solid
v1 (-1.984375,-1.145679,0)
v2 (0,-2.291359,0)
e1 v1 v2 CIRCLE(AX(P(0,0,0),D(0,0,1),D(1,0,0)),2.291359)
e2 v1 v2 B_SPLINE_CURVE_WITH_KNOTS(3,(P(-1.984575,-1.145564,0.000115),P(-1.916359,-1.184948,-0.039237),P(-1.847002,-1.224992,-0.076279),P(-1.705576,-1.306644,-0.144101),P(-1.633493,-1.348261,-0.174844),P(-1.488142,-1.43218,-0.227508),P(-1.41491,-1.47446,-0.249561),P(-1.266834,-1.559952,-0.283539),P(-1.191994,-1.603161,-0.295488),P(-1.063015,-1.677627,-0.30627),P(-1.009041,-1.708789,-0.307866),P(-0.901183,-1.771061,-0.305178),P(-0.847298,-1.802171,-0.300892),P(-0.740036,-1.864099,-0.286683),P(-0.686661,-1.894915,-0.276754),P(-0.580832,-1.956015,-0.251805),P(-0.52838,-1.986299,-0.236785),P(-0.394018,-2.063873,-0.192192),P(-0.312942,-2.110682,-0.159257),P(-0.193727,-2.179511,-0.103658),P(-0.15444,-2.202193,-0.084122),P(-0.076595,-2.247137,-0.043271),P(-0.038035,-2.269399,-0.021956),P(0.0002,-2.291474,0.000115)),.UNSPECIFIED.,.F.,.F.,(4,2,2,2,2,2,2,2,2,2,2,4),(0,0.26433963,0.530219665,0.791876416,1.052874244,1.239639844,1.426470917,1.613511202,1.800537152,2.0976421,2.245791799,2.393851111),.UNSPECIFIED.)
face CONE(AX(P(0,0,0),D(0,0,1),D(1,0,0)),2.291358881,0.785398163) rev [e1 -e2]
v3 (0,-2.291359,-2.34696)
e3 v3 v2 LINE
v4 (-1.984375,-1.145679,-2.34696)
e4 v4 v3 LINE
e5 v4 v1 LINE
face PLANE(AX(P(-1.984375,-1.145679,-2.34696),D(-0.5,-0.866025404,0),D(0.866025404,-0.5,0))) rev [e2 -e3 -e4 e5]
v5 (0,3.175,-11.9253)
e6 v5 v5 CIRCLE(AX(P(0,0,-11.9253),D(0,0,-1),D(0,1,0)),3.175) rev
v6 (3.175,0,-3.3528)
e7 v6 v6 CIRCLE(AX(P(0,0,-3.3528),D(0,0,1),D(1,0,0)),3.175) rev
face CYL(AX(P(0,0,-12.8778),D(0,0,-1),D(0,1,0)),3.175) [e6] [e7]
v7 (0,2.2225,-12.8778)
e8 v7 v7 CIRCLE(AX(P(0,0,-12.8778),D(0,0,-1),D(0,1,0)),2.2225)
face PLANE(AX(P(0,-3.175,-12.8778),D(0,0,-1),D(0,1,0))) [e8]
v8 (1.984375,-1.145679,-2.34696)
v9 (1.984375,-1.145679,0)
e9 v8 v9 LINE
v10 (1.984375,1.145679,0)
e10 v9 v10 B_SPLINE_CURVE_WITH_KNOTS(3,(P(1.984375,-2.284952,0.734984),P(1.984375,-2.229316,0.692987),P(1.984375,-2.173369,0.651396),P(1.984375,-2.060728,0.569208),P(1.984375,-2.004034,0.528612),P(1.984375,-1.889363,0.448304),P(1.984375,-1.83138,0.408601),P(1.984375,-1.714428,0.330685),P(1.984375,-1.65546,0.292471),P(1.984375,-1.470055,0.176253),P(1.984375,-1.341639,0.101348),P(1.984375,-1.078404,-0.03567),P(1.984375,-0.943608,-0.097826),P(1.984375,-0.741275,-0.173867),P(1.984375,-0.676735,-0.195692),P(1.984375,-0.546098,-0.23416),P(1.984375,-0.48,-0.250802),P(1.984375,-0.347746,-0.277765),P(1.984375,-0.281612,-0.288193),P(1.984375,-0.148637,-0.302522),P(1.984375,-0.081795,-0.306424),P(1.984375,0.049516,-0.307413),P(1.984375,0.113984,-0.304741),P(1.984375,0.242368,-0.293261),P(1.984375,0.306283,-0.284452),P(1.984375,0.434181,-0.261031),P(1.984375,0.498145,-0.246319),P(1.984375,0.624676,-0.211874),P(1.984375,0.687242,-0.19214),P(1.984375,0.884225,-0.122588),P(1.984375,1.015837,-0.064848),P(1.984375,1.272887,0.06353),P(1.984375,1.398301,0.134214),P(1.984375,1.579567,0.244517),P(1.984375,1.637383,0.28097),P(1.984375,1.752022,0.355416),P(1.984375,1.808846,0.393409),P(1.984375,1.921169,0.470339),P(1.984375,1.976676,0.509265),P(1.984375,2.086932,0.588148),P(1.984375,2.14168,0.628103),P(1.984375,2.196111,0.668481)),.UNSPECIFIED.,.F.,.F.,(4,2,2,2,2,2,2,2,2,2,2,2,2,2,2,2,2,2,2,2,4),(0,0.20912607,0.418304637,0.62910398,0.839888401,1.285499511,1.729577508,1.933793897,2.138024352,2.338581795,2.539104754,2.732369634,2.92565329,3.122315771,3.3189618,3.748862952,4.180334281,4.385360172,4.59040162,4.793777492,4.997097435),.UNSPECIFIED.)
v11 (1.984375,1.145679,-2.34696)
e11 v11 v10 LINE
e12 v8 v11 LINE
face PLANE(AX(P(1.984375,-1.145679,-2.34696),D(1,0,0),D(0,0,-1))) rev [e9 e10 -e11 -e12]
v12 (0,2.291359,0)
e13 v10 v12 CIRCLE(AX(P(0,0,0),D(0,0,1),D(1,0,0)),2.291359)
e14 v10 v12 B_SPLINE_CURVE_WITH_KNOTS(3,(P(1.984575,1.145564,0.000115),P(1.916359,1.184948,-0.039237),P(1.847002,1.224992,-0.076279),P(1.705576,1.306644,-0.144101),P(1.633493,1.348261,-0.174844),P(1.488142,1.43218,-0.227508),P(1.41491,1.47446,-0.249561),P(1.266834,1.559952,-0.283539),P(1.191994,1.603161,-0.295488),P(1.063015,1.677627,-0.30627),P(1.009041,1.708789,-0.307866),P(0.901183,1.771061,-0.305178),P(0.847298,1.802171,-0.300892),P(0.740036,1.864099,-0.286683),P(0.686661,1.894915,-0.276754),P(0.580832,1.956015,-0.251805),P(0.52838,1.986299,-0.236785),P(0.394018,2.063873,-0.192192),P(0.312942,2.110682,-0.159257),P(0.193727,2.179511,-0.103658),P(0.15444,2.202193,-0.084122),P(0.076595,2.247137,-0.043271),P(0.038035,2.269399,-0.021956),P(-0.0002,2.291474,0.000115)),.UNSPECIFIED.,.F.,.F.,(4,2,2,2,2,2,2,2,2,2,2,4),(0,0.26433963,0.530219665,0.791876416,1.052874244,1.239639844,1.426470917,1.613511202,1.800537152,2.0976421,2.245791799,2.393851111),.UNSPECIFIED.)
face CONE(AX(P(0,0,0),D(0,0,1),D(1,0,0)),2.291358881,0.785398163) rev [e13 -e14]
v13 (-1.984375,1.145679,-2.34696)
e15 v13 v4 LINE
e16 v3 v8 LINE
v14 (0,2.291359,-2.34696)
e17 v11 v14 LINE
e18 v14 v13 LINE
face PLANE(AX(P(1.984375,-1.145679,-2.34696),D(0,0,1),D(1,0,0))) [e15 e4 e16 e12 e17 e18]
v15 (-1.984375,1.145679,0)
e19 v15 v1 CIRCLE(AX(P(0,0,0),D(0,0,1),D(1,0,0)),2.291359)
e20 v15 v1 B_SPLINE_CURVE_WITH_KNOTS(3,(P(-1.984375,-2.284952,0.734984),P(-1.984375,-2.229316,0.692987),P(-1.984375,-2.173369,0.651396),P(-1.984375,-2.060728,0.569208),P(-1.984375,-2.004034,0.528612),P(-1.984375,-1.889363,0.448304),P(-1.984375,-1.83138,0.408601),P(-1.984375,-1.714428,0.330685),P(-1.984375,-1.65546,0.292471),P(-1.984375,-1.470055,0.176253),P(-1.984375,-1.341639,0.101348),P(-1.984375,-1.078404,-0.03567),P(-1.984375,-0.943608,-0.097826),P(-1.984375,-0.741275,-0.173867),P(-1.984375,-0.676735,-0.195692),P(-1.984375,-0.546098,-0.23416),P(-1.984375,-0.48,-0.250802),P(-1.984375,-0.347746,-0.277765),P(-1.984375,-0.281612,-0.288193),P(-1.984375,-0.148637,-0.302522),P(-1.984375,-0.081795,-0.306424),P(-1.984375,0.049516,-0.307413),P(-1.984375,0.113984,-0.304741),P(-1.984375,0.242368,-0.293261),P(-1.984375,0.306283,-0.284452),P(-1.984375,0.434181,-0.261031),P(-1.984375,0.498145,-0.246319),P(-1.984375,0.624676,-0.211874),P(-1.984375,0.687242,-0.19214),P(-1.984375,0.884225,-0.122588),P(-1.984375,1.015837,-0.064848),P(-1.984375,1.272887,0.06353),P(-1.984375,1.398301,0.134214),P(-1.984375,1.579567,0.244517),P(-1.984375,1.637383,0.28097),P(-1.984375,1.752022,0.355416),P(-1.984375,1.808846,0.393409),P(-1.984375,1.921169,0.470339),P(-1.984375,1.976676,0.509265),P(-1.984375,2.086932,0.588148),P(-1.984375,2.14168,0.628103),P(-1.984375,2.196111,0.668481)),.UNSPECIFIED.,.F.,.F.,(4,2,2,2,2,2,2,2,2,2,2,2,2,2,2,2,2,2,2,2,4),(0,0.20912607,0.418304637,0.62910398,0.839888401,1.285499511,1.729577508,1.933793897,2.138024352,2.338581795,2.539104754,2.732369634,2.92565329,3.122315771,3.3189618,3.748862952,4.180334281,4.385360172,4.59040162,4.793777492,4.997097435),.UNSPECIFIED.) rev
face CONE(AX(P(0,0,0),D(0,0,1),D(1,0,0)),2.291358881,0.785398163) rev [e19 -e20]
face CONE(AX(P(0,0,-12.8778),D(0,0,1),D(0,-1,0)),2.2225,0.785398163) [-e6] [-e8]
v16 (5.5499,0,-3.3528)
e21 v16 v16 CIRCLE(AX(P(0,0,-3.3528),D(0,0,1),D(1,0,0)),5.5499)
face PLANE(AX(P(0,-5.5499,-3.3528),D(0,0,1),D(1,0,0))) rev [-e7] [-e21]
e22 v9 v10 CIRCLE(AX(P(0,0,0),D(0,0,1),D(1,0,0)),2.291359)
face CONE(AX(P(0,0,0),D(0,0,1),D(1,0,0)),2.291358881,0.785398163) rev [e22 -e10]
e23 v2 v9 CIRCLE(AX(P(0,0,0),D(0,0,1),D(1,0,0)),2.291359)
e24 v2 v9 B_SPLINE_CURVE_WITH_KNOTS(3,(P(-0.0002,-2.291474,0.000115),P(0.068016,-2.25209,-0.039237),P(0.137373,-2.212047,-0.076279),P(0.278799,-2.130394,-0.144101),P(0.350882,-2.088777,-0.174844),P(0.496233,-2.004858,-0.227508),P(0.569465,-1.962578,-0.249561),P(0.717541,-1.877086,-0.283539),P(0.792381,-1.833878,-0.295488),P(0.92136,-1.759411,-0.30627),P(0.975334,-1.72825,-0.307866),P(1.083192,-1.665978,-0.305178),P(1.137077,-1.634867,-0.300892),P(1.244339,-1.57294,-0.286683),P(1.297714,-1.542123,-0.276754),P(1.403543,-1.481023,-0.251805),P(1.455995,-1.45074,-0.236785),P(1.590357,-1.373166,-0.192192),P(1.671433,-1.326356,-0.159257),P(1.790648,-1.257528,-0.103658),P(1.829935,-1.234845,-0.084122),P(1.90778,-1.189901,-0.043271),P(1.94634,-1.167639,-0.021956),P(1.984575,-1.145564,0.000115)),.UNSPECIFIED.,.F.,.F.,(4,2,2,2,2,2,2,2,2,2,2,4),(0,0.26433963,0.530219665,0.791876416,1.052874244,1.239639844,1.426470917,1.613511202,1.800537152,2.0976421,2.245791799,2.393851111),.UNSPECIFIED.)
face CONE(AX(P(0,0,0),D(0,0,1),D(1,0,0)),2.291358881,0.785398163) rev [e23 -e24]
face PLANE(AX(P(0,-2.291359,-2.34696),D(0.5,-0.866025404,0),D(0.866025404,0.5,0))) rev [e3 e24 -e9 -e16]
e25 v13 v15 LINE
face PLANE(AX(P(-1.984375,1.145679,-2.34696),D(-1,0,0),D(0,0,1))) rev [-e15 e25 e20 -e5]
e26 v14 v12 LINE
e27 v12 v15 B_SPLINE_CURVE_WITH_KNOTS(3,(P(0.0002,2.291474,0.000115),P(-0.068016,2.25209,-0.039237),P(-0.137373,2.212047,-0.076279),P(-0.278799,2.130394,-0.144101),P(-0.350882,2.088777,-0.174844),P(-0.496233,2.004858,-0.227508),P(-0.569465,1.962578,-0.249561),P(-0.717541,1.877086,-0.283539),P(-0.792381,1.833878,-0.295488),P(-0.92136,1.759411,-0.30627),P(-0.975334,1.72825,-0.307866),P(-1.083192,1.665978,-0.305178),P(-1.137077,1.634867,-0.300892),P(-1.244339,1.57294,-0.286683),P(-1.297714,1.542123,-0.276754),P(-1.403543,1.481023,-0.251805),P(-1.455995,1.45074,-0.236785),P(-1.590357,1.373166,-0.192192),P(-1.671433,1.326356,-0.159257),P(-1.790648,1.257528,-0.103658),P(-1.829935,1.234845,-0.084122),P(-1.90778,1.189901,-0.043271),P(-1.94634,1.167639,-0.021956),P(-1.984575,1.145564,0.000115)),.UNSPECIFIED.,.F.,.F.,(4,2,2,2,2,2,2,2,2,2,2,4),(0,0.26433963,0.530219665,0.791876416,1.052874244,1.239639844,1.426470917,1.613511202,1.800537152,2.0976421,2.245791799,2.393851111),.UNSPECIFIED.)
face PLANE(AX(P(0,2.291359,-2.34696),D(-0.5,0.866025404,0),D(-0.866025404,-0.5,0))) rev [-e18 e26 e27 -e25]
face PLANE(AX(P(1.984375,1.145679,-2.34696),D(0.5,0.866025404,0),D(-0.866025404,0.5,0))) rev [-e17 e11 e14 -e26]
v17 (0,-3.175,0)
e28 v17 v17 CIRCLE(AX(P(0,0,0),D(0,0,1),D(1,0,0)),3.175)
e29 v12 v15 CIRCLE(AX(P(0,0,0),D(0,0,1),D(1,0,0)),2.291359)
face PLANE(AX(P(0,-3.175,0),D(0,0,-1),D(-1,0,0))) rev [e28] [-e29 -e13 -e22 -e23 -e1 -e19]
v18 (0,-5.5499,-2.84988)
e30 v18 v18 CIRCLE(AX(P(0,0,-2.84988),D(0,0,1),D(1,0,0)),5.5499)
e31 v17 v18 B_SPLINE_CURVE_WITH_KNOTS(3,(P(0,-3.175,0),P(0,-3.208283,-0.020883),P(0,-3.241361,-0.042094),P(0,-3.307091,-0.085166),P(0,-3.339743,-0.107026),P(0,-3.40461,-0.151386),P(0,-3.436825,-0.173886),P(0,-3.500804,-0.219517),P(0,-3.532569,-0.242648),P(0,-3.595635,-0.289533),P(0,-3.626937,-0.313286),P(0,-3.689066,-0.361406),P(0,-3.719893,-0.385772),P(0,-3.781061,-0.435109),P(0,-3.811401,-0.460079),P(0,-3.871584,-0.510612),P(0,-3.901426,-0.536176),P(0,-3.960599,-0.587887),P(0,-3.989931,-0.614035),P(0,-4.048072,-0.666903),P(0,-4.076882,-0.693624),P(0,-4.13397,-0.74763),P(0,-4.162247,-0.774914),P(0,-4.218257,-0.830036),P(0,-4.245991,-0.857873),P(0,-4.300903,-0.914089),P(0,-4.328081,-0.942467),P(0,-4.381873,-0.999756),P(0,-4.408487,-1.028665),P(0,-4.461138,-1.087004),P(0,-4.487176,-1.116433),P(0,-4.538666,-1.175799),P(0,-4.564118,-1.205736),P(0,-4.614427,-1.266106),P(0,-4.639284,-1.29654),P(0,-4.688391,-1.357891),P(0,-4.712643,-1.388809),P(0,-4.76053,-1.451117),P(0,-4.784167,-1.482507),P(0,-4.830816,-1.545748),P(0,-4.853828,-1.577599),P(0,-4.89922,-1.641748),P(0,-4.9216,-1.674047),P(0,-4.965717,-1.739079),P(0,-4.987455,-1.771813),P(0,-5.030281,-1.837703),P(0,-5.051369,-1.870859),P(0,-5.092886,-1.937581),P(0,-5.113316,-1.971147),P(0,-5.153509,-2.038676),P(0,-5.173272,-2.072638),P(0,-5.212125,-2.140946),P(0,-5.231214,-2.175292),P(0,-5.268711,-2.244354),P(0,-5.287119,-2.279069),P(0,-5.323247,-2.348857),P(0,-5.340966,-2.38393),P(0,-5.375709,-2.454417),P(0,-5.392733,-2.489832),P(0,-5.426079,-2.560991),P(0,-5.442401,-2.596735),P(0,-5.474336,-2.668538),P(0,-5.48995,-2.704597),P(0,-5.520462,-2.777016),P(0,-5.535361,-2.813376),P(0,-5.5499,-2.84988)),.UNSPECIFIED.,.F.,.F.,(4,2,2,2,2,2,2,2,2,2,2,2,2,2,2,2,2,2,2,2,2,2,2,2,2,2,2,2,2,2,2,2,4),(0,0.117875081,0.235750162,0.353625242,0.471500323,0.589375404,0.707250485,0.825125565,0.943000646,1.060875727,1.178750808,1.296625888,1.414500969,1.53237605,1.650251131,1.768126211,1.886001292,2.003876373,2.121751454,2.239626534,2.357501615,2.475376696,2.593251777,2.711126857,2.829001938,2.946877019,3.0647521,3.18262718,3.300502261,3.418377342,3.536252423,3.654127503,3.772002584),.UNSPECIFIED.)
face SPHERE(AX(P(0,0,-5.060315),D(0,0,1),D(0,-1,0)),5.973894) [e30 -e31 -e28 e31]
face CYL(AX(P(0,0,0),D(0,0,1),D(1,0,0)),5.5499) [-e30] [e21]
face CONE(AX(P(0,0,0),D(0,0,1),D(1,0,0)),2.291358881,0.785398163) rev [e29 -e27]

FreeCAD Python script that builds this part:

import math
import FreeCAD as App
import Part
import Sketcher

V = App.Vector
Q = App.Units.Quantity


def edges_at(feature, points):
    """Names of the edges that pass closest to the given points."""
    edges = feature.Shape.Edges
    near = lambda p: min(range(len(edges)), key=lambda i: edges[i].distToShape(Part.Vertex(*p))[0])
    return sorted({f"Edge{near(p) + 1}" for p in points})


def add_polygon(sketch, points):
    """Adds a closed chain of lines whose ends are joined by coincident constraints."""
    first, n = sketch.GeometryCount, len(points)
    for a, b in zip(points, points[1:] + points[:1]):
        sketch.addGeometry(Part.LineSegment(App.Vector(*a, 0), App.Vector(*b, 0)), False)
    for i in range(n):
        sketch.addConstraint(Sketcher.Constraint("Coincident", first + i, 2, first + (i + 1) % n, 1))

doc = App.newDocument("Part")
params = doc.addObject("Spreadsheet::Sheet", "Params")
for row, (alias, value) in enumerate([
    ("sketch1_width", "0.125 in"),
    ("sketch1_height", "0.375 in"),
    ("revolution_angle", "360 deg"),
    ("chamfer_size", "0.0375 in"),
    ("sketch2_width", "0.125 in"),
    ("sketch2_height", "0.132 in"),
    ("revolution2_angle", "360 deg"),
    ("pocket1_length", "0.0924 in"),
    ("groove_angle", "360 deg"),
], start=1):
    params.set(f"A{row}", alias)
    params.set(f"B{row}", "=" + value)
    params.setAlias(f"B{row}", alias)

body = doc.addObject("PartDesign::Body", "Body")

# Sketch on YZ plane
sketch1 = doc.addObject("Sketcher::SketchObject", "Sketch")
body.addObject(sketch1)
sketch1.AttachmentSupport = (doc.YZ_Plane, [""])
sketch1.MapMode = "FlatFace"
add_polygon(sketch1, [(3.2, -3.4), (0, -3.4), (0, -12.9), (3.2, -12.9)])  # lines 0-3
sketch1.addConstraint(Sketcher.Constraint("Horizontal", 0))
sketch1.addConstraint(Sketcher.Constraint("Vertical", 1))
sketch1.addConstraint(Sketcher.Constraint("Horizontal", 2))
sketch1.addConstraint(Sketcher.Constraint("Vertical", 3))
sketch1.addConstraint(Sketcher.Constraint("PointOnObject", 0, 2, -2))
sketch1.addConstraint(Sketcher.Constraint("DistanceX", 0, 2, 0, 1, Q("0.125 in")))
sketch1.addConstraint(Sketcher.Constraint("DistanceY", 1, 2, 1, 1, Q("0.375 in")))
sketch1.addConstraint(Sketcher.Constraint("DistanceY", 0, 2, -1, 1, Q("0.132 in")))
sketch1.setExpression("Constraints[9]", "Params.sketch1_width")
sketch1.setExpression("Constraints[10]", "Params.sketch1_height")
revolution = doc.addObject("PartDesign::Revolution", "Revolution")
body.addObject(revolution)
revolution.Profile = sketch1
revolution.ReferenceAxis = (sketch1, ["V_Axis"])
revolution.setExpression("Angle", "Params.revolution_angle")
doc.recompute()

chamfer = doc.addObject("PartDesign::Chamfer", "Chamfer")
body.addObject(chamfer)
chamfer.Base = (revolution, edges_at(revolution, [(0, -3.175, -12.878)]))
chamfer.setExpression("Size", "Params.chamfer_size")

# Sketch on YZ plane
sketch2 = doc.addObject("Sketcher::SketchObject", "Sketch001")
body.addObject(sketch2)
sketch2.AttachmentSupport = (doc.YZ_Plane, [""])
sketch2.MapMode = "FlatFace"
sketch2.addGeometry(Part.LineSegment(V(5.5, -3.4, 0), V(5.5, -2.8, 0)), False)
sketch2.addGeometry(Part.ArcOfCircle(Part.Circle(V(0, -5.1, 0), V(0, 0, 1), 6), math.radians(22), math.radians(58)), False)
sketch2.addGeometry(Part.LineSegment(V(3.2, 0, 0), V(0, 0, 0)), False)
sketch2.addGeometry(Part.LineSegment(V(0, 0, 0), V(0, -3.4, 0)), False)
sketch2.addGeometry(Part.LineSegment(V(0, -3.4, 0), V(5.5, -3.4, 0)), False)
sketch2.addConstraint(Sketcher.Constraint("Coincident", 0, 2, 1, 1))
sketch2.addConstraint(Sketcher.Constraint("Coincident", 1, 2, 2, 1))
sketch2.addConstraint(Sketcher.Constraint("Coincident", 2, 2, 3, 1))
sketch2.addConstraint(Sketcher.Constraint("Coincident", 3, 2, 4, 1))
sketch2.addConstraint(Sketcher.Constraint("Coincident", 4, 2, 0, 1))
sketch2.addConstraint(Sketcher.Constraint("Vertical", 0))
sketch2.addConstraint(Sketcher.Constraint("Horizontal", 2))
sketch2.addConstraint(Sketcher.Constraint("Vertical", 3))
sketch2.addConstraint(Sketcher.Constraint("Horizontal", 4))
sketch2.addConstraint(Sketcher.Constraint("Coincident", 2, 2, -1, 1))
sketch2.addConstraint(Sketcher.Constraint("PointOnObject", 1, 3, -2))
sketch2.addConstraint(Sketcher.Constraint("DistanceX", 2, 2, 2, 1, Q("0.125 in")))
sketch2.addConstraint(Sketcher.Constraint("DistanceY", 3, 2, 3, 1, Q("0.132 in")))
sketch2.addConstraint(Sketcher.Constraint("DistanceX", 4, 1, 4, 2, Q("0.2185 in")))
sketch2.addConstraint(Sketcher.Constraint("DistanceY", 0, 1, 0, 2, Q("0.0198 in")))
sketch2.setExpression("Constraints[11]", "Params.sketch2_width")
sketch2.setExpression("Constraints[12]", "Params.sketch2_height")
revolution2 = doc.addObject("PartDesign::Revolution", "Revolution001")
body.addObject(revolution2)
revolution2.Profile = sketch2
revolution2.ReferenceAxis = (sketch2, ["V_Axis"])
revolution2.setExpression("Angle", "Params.revolution2_angle")

# Sketch on XY plane
sketch3 = doc.addObject("Sketcher::SketchObject", "Sketch002")
body.addObject(sketch3)
sketch3.AttachmentSupport = (doc.XY_Plane, [""])
sketch3.MapMode = "FlatFace"
add_polygon(sketch3, [(2, -1.1), (2, 1.1), (0, 2.3), (-2, 1.1), (-2, -1.1), (0, -2.3)])  # lines 0-5
sketch3.addConstraint(Sketcher.Constraint("Vertical", 0))
sketch3.addConstraint(Sketcher.Constraint("Vertical", 3))
sketch3.addConstraint(Sketcher.Constraint("Symmetric", 0, 2, 3, 2, -1, 1))
sketch3.addConstraint(Sketcher.Constraint("Symmetric", 1, 2, 4, 2, -1, 1))
sketch3.addConstraint(Sketcher.Constraint("PointOnObject", 1, 2, -2))
sketch3.addConstraint(Sketcher.Constraint("Parallel", 2, 5))
sketch3.addConstraint(Sketcher.Constraint("Horizontal", 0, 2, 2, 2))
sketch3.addConstraint(Sketcher.Constraint("Angle", 1, Q("150 deg")))
sketch3.addConstraint(Sketcher.Constraint("DistanceX", -1, 1, 0, 2, Q("0.078125 in")))
sketch3.addConstraint(Sketcher.Constraint("DistanceY", 0, 1, 0, 2, 2.291359))
pocket1 = doc.addObject("PartDesign::Pocket", "Pocket")
body.addObject(pocket1)
pocket1.Profile = sketch3
pocket1.setExpression("Length", "Params.pocket1_length")

# Sketch on YZ plane
sketch4 = doc.addObject("Sketcher::SketchObject", "Sketch003")
body.addObject(sketch4)
sketch4.AttachmentSupport = (doc.YZ_Plane, [""])
sketch4.MapMode = "FlatFace"
add_polygon(sketch4, [(0, 0), (-2.3, 0), (0, -2.3)])  # lines 0-2
sketch4.addConstraint(Sketcher.Constraint("Horizontal", 0))
sketch4.addConstraint(Sketcher.Constraint("Vertical", 2))
sketch4.addConstraint(Sketcher.Constraint("Coincident", 2, 2, -1, 1))
sketch4.addConstraint(Sketcher.Constraint("Equal", 0, 2))
sketch4.addConstraint(Sketcher.Constraint("DistanceX", 0, 2, 0, 1, 2.291359))
groove = doc.addObject("PartDesign::Groove", "Groove")
body.addObject(groove)
groove.Profile = sketch4
groove.ReferenceAxis = (sketch4, ["V_Axis"])
groove.setExpression("Angle", "Params.groove_angle")

doc.recompute()
